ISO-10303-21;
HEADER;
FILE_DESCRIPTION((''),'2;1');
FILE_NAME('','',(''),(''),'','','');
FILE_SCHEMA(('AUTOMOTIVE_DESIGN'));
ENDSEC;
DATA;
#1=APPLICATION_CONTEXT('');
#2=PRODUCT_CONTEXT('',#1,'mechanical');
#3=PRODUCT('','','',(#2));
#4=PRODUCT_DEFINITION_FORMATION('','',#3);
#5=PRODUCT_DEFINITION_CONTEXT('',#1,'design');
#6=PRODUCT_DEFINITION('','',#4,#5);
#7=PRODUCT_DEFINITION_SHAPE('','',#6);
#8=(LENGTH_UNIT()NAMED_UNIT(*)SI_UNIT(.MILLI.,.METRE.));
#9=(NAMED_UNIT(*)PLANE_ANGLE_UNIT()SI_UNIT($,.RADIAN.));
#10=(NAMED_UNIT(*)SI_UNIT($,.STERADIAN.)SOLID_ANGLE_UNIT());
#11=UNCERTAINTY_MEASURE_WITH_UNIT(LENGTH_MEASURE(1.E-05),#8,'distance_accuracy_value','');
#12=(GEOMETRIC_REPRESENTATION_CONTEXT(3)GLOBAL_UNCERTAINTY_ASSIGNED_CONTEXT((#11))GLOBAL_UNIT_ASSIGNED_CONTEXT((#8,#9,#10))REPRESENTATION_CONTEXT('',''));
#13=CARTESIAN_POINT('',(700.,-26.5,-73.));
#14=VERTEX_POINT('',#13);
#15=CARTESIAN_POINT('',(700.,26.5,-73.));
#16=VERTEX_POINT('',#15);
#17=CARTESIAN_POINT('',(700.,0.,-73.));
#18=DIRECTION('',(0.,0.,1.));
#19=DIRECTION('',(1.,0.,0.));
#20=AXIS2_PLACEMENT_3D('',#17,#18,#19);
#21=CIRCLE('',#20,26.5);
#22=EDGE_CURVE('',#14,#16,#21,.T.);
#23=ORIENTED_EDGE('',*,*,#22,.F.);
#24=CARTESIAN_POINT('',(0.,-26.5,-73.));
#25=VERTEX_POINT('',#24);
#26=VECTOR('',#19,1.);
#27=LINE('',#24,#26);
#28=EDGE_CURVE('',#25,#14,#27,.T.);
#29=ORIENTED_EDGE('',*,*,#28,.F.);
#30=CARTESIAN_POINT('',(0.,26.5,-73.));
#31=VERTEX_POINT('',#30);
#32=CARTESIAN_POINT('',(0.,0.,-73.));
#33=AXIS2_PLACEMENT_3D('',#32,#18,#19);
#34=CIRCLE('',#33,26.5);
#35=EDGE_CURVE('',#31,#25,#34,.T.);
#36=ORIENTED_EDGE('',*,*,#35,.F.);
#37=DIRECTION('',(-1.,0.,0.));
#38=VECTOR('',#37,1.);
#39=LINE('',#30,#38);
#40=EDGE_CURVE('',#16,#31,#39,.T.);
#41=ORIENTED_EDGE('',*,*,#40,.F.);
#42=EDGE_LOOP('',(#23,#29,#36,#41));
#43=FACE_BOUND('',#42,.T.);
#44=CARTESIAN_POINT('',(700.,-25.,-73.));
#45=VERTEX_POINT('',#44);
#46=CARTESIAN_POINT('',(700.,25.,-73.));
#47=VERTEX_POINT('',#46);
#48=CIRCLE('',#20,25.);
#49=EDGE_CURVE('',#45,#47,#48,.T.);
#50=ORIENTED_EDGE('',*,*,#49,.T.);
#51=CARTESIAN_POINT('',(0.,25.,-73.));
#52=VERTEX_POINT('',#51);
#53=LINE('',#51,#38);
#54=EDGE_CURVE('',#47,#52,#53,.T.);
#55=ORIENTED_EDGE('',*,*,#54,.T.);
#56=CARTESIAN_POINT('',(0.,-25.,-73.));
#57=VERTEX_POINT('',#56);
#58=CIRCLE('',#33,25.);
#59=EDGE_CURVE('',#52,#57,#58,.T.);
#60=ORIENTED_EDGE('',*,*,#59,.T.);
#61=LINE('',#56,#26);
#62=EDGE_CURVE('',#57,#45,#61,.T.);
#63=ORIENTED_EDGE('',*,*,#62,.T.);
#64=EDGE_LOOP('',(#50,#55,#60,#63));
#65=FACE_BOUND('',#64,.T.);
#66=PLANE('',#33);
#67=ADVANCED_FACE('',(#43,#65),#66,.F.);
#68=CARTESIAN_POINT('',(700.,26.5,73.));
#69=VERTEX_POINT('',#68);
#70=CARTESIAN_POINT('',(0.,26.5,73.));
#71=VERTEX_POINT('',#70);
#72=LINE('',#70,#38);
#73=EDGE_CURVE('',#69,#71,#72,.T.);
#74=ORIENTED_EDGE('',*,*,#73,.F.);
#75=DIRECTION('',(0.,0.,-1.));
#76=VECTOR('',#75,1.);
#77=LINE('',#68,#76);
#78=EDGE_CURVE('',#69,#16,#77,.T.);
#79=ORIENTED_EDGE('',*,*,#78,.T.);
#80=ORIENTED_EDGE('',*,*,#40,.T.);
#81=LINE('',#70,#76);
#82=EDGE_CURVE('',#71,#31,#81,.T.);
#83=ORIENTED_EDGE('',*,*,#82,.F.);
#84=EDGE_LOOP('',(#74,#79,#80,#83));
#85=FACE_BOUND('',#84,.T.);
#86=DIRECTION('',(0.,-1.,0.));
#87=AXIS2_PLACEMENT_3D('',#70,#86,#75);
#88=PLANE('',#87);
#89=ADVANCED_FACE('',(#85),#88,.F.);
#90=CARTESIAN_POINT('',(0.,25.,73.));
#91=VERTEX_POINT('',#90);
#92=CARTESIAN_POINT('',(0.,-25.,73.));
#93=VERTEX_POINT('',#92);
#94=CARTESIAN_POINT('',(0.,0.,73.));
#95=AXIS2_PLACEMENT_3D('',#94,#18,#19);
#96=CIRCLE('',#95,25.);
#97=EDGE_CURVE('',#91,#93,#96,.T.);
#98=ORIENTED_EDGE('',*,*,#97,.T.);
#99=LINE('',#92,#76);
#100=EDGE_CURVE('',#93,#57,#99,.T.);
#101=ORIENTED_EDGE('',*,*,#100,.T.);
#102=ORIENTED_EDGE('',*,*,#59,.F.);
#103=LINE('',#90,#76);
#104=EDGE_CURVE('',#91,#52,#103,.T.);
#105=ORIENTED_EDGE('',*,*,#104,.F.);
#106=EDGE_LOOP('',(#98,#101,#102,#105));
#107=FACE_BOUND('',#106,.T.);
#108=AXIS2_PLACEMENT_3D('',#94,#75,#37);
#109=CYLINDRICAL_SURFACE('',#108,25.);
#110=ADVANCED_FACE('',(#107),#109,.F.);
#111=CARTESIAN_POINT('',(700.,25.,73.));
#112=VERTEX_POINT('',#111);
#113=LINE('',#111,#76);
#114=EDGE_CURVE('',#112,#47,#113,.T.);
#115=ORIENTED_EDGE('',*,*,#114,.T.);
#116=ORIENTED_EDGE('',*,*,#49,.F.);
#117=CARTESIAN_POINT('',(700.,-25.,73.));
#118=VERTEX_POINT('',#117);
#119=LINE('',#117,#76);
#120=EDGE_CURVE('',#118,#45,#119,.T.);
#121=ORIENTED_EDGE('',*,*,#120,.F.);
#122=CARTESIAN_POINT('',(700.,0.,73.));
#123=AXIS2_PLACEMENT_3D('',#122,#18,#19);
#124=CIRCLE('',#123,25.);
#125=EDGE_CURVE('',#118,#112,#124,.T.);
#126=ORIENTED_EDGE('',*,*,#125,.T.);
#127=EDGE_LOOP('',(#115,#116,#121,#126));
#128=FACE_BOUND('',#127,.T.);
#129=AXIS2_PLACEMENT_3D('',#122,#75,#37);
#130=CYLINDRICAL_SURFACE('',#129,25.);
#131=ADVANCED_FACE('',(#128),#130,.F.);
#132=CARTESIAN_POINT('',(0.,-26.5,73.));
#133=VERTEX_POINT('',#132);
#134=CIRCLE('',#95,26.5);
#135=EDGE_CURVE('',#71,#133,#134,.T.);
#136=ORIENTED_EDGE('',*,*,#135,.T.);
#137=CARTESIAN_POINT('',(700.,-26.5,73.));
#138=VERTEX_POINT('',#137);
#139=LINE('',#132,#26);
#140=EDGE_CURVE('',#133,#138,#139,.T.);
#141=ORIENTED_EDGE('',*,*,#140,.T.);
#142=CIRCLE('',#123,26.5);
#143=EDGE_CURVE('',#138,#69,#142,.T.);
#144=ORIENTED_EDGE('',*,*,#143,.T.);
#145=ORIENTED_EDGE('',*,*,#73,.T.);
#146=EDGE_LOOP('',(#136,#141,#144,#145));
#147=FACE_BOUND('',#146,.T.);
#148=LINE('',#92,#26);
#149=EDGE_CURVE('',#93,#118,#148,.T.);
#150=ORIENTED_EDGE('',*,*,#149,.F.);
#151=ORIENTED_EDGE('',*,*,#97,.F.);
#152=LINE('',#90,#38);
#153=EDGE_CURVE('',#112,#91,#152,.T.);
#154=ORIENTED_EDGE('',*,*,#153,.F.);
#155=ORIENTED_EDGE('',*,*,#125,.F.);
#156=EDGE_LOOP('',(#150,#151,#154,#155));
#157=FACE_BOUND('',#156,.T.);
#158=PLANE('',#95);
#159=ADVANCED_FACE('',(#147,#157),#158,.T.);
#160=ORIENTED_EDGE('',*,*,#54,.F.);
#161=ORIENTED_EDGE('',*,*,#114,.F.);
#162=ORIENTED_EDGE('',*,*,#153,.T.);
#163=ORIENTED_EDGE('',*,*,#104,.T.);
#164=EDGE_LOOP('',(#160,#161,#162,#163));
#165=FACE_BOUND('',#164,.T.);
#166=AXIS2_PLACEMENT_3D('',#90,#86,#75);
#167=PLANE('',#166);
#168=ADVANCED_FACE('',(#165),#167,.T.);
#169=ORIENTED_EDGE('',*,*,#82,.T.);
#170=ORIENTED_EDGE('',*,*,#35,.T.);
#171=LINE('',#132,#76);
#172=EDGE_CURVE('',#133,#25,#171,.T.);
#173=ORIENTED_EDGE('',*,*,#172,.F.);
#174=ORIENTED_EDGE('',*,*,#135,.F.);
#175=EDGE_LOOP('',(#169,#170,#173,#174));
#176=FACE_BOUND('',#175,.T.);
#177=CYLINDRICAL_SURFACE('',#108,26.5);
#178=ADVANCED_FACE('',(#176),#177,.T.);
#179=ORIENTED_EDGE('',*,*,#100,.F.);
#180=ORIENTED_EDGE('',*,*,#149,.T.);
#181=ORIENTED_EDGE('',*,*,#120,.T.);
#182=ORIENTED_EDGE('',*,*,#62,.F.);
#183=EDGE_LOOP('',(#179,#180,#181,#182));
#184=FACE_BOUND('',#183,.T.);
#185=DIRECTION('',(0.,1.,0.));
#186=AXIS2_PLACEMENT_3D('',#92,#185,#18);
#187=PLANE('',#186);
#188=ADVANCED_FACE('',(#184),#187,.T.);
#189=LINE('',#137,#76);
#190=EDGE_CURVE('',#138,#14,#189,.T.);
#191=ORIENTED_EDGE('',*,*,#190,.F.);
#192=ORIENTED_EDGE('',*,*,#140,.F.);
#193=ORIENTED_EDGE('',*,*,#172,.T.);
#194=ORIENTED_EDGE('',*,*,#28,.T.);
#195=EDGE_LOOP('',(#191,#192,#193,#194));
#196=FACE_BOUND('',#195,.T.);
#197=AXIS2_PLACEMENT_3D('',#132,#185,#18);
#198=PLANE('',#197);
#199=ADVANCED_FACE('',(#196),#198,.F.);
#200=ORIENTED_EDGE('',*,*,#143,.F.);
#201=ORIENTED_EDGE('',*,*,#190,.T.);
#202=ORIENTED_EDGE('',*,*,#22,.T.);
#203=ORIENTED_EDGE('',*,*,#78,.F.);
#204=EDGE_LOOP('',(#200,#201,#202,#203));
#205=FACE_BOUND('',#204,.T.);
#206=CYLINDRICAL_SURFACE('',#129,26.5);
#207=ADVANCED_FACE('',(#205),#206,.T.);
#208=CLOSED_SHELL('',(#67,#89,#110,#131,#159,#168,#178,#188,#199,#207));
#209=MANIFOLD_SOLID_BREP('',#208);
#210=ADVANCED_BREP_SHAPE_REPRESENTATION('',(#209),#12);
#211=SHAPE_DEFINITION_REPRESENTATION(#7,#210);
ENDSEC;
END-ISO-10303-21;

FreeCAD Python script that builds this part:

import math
import FreeCAD as App
import Part
import Sketcher
from FreeCAD import Vector

doc = App.newDocument("Part")
body = doc.addObject("PartDesign::Body", "Body")

# Sketch on XY plane
sketch1 = doc.addObject("Sketcher::SketchObject", "Sketch")
body.addObject(sketch1)
sketch1.AttachmentSupport = (doc.XY_Plane, [""])
sketch1.MapMode = "FlatFace"
sketch1.addGeometry([
    Part.LineSegment(Vector(700, 26, 0), Vector(0, 26, 0)),  # 0
    Part.ArcOfCircle(Part.Circle(Vector(0, 0, 0), Vector(0, 0, 1), 26), math.radians(90), math.radians(270)),  # 1
    Part.LineSegment(Vector(0, -26, 0), Vector(700, -26, 0)),  # 2
    Part.ArcOfCircle(Part.Circle(Vector(700, 0, 0), Vector(0, 0, 1), 26), math.radians(-90), math.radians(90)),  # 3
    Part.LineSegment(Vector(0, 25, 0), Vector(700, 25, 0)),  # 4
    Part.ArcOfCircle(Part.Circle(Vector(700, 0, 0), Vector(0, 0, 1), 25), math.radians(-90), math.radians(90)),  # 5
    Part.LineSegment(Vector(700, -25, 0), Vector(0, -25, 0)),  # 6
    Part.ArcOfCircle(Part.Circle(Vector(0, 0, 0), Vector(0, 0, 1), 25), math.radians(90), math.radians(270)),  # 7
], False)
sketch1.addConstraint([
    Sketcher.Constraint("Tangent", 0, 2, 1, 1),
    Sketcher.Constraint("Tangent", 1, 2, 2, 1),
    Sketcher.Constraint("Tangent", 2, 2, 3, 1),
    Sketcher.Constraint("Tangent", 3, 2, 0, 1),
    Sketcher.Constraint("Tangent", 4, 2, 5, 2),
    Sketcher.Constraint("Tangent", 5, 1, 6, 1),
    Sketcher.Constraint("Tangent", 6, 2, 7, 2),
    Sketcher.Constraint("Tangent", 7, 1, 4, 1),
    Sketcher.Constraint("Horizontal", 0),
    Sketcher.Constraint("Horizontal", 2),
    Sketcher.Constraint("Horizontal", 4),
    Sketcher.Constraint("Horizontal", 6),
    Sketcher.Constraint("Coincident", 1, 3, -1, 1),
    Sketcher.Constraint("Coincident", 7, 3, -1, 1),
    Sketcher.Constraint("Vertical", 5, 3, 2, 2),
    Sketcher.Constraint("Radius", 5, 25.0),
    Sketcher.Constraint("Radius", 1, 26.5),
    Sketcher.Constraint("DistanceX", 0, 2, 0, 1, 700.0),
])
pad1 = doc.addObject("PartDesign::Pad", "Pad")
body.addObject(pad1)
pad1.Profile = sketch1
pad1.Length = 146
pad1.Midplane = True

doc.recompute()
